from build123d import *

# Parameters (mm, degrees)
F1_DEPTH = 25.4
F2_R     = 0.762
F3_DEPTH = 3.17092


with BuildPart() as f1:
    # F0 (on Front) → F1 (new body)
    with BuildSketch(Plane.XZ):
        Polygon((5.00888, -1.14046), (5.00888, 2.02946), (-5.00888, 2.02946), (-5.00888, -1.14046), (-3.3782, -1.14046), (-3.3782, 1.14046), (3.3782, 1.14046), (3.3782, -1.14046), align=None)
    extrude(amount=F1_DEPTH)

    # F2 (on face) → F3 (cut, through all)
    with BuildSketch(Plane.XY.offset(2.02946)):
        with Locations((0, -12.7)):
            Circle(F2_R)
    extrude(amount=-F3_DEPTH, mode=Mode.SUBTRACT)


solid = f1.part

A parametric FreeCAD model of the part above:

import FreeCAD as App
import Part
import Sketcher
Q = App.Units.Quantity

doc = App.newDocument("Part")
body = doc.addObject("PartDesign::Body", "Body")

# Sketch on XZ plane
sketch1 = body.newObject("Sketcher::SketchObject", "Sketch")
sketch1.AttachmentSupport = (doc.getObject("XZ_Plane"), [""])
sketch1.MapMode = "FlatFace"
sketch1.addGeometry([
    Part.LineSegment(App.Vector(5, -1.1, 0), App.Vector(5, 2, 0)),  # 0
    Part.LineSegment(App.Vector(5, 2, 0), App.Vector(-5, 2, 0)),  # 1
    Part.LineSegment(App.Vector(-5, 2, 0), App.Vector(-5, -1.1, 0)),  # 2
    Part.LineSegment(App.Vector(-5, -1.1, 0), App.Vector(-3.4, -1.1, 0)),  # 3
    Part.LineSegment(App.Vector(-3.4, -1.1, 0), App.Vector(-3.4, 1.1, 0)),  # 4
    Part.LineSegment(App.Vector(-3.4, 1.1, 0), App.Vector(3.4, 1.1, 0)),  # 5
    Part.LineSegment(App.Vector(3.4, 1.1, 0), App.Vector(3.4, -1.1, 0)),  # 6
    Part.LineSegment(App.Vector(3.4, -1.1, 0), App.Vector(5, -1.1, 0)),  # 7
], False)
sketch1.addConstraint([
    Sketcher.Constraint("Coincident", 0, 2, 1, 1),
    Sketcher.Constraint("Coincident", 1, 2, 2, 1),
    Sketcher.Constraint("Coincident", 2, 2, 3, 1),
    Sketcher.Constraint("Coincident", 3, 2, 4, 1),
    Sketcher.Constraint("Coincident", 4, 2, 5, 1),
    Sketcher.Constraint("Coincident", 5, 2, 6, 1),
    Sketcher.Constraint("Coincident", 6, 2, 7, 1),
    Sketcher.Constraint("Coincident", 7, 2, 0, 1),
    Sketcher.Constraint("Vertical", 0),
    Sketcher.Constraint("Horizontal", 1),
    Sketcher.Constraint("Vertical", 2),
    Sketcher.Constraint("Horizontal", 3),
    Sketcher.Constraint("Vertical", 4),
    Sketcher.Constraint("Horizontal", 5),
    Sketcher.Constraint("Vertical", 6),
    Sketcher.Constraint("Horizontal", 7),
    Sketcher.Constraint("Symmetric", 3, 2, 5, 2, -1, 1),
    Sketcher.Constraint("Symmetric", 2, 2, 7, 2, -2),
    Sketcher.Constraint("DistanceX", 5, 1, 5, 2, Q("0.266 in")),
    Sketcher.Constraint("DistanceX", 1, 2, 1, 1, Q("0.3944 in")),
    Sketcher.Constraint("DistanceY", 0, 1, 0, 2, Q("0.1248 in")),
    Sketcher.Constraint("DistanceY", 4, 1, 4, 2, Q("0.0898 in")),
])
pad1 = body.newObject("PartDesign::Pad", "Pad")
pad1.Profile = sketch1
pad1.Length = Q("1 in")

# Sketch on XY plane
sketch2 = body.newObject("Sketcher::SketchObject", "Sketch001")
sketch2.AttachmentSupport = (doc.getObject("XY_Plane"), [""])
sketch2.MapMode = "FlatFace"
sketch2.AttachmentOffset = App.Placement(App.Vector(0, 0, 0.0799 * 25.4), App.Rotation())
sketch2.addGeometry(Part.Circle(App.Vector(0, -12.7, 0), App.Vector(0, 0, 1), 0.8), False)
sketch2.addConstraint([
    Sketcher.Constraint("PointOnObject", 0, 3, -2),
    Sketcher.Constraint("Diameter", 0, Q("0.06 in")),
    Sketcher.Constraint("DistanceY", 0, 3, -1, 1, Q("0.5 in")),
])
pocket1 = body.newObject("PartDesign::Pocket", "Pocket")
pocket1.Profile = sketch2
pocket1.Type = "ThroughAll"

doc.recompute()
